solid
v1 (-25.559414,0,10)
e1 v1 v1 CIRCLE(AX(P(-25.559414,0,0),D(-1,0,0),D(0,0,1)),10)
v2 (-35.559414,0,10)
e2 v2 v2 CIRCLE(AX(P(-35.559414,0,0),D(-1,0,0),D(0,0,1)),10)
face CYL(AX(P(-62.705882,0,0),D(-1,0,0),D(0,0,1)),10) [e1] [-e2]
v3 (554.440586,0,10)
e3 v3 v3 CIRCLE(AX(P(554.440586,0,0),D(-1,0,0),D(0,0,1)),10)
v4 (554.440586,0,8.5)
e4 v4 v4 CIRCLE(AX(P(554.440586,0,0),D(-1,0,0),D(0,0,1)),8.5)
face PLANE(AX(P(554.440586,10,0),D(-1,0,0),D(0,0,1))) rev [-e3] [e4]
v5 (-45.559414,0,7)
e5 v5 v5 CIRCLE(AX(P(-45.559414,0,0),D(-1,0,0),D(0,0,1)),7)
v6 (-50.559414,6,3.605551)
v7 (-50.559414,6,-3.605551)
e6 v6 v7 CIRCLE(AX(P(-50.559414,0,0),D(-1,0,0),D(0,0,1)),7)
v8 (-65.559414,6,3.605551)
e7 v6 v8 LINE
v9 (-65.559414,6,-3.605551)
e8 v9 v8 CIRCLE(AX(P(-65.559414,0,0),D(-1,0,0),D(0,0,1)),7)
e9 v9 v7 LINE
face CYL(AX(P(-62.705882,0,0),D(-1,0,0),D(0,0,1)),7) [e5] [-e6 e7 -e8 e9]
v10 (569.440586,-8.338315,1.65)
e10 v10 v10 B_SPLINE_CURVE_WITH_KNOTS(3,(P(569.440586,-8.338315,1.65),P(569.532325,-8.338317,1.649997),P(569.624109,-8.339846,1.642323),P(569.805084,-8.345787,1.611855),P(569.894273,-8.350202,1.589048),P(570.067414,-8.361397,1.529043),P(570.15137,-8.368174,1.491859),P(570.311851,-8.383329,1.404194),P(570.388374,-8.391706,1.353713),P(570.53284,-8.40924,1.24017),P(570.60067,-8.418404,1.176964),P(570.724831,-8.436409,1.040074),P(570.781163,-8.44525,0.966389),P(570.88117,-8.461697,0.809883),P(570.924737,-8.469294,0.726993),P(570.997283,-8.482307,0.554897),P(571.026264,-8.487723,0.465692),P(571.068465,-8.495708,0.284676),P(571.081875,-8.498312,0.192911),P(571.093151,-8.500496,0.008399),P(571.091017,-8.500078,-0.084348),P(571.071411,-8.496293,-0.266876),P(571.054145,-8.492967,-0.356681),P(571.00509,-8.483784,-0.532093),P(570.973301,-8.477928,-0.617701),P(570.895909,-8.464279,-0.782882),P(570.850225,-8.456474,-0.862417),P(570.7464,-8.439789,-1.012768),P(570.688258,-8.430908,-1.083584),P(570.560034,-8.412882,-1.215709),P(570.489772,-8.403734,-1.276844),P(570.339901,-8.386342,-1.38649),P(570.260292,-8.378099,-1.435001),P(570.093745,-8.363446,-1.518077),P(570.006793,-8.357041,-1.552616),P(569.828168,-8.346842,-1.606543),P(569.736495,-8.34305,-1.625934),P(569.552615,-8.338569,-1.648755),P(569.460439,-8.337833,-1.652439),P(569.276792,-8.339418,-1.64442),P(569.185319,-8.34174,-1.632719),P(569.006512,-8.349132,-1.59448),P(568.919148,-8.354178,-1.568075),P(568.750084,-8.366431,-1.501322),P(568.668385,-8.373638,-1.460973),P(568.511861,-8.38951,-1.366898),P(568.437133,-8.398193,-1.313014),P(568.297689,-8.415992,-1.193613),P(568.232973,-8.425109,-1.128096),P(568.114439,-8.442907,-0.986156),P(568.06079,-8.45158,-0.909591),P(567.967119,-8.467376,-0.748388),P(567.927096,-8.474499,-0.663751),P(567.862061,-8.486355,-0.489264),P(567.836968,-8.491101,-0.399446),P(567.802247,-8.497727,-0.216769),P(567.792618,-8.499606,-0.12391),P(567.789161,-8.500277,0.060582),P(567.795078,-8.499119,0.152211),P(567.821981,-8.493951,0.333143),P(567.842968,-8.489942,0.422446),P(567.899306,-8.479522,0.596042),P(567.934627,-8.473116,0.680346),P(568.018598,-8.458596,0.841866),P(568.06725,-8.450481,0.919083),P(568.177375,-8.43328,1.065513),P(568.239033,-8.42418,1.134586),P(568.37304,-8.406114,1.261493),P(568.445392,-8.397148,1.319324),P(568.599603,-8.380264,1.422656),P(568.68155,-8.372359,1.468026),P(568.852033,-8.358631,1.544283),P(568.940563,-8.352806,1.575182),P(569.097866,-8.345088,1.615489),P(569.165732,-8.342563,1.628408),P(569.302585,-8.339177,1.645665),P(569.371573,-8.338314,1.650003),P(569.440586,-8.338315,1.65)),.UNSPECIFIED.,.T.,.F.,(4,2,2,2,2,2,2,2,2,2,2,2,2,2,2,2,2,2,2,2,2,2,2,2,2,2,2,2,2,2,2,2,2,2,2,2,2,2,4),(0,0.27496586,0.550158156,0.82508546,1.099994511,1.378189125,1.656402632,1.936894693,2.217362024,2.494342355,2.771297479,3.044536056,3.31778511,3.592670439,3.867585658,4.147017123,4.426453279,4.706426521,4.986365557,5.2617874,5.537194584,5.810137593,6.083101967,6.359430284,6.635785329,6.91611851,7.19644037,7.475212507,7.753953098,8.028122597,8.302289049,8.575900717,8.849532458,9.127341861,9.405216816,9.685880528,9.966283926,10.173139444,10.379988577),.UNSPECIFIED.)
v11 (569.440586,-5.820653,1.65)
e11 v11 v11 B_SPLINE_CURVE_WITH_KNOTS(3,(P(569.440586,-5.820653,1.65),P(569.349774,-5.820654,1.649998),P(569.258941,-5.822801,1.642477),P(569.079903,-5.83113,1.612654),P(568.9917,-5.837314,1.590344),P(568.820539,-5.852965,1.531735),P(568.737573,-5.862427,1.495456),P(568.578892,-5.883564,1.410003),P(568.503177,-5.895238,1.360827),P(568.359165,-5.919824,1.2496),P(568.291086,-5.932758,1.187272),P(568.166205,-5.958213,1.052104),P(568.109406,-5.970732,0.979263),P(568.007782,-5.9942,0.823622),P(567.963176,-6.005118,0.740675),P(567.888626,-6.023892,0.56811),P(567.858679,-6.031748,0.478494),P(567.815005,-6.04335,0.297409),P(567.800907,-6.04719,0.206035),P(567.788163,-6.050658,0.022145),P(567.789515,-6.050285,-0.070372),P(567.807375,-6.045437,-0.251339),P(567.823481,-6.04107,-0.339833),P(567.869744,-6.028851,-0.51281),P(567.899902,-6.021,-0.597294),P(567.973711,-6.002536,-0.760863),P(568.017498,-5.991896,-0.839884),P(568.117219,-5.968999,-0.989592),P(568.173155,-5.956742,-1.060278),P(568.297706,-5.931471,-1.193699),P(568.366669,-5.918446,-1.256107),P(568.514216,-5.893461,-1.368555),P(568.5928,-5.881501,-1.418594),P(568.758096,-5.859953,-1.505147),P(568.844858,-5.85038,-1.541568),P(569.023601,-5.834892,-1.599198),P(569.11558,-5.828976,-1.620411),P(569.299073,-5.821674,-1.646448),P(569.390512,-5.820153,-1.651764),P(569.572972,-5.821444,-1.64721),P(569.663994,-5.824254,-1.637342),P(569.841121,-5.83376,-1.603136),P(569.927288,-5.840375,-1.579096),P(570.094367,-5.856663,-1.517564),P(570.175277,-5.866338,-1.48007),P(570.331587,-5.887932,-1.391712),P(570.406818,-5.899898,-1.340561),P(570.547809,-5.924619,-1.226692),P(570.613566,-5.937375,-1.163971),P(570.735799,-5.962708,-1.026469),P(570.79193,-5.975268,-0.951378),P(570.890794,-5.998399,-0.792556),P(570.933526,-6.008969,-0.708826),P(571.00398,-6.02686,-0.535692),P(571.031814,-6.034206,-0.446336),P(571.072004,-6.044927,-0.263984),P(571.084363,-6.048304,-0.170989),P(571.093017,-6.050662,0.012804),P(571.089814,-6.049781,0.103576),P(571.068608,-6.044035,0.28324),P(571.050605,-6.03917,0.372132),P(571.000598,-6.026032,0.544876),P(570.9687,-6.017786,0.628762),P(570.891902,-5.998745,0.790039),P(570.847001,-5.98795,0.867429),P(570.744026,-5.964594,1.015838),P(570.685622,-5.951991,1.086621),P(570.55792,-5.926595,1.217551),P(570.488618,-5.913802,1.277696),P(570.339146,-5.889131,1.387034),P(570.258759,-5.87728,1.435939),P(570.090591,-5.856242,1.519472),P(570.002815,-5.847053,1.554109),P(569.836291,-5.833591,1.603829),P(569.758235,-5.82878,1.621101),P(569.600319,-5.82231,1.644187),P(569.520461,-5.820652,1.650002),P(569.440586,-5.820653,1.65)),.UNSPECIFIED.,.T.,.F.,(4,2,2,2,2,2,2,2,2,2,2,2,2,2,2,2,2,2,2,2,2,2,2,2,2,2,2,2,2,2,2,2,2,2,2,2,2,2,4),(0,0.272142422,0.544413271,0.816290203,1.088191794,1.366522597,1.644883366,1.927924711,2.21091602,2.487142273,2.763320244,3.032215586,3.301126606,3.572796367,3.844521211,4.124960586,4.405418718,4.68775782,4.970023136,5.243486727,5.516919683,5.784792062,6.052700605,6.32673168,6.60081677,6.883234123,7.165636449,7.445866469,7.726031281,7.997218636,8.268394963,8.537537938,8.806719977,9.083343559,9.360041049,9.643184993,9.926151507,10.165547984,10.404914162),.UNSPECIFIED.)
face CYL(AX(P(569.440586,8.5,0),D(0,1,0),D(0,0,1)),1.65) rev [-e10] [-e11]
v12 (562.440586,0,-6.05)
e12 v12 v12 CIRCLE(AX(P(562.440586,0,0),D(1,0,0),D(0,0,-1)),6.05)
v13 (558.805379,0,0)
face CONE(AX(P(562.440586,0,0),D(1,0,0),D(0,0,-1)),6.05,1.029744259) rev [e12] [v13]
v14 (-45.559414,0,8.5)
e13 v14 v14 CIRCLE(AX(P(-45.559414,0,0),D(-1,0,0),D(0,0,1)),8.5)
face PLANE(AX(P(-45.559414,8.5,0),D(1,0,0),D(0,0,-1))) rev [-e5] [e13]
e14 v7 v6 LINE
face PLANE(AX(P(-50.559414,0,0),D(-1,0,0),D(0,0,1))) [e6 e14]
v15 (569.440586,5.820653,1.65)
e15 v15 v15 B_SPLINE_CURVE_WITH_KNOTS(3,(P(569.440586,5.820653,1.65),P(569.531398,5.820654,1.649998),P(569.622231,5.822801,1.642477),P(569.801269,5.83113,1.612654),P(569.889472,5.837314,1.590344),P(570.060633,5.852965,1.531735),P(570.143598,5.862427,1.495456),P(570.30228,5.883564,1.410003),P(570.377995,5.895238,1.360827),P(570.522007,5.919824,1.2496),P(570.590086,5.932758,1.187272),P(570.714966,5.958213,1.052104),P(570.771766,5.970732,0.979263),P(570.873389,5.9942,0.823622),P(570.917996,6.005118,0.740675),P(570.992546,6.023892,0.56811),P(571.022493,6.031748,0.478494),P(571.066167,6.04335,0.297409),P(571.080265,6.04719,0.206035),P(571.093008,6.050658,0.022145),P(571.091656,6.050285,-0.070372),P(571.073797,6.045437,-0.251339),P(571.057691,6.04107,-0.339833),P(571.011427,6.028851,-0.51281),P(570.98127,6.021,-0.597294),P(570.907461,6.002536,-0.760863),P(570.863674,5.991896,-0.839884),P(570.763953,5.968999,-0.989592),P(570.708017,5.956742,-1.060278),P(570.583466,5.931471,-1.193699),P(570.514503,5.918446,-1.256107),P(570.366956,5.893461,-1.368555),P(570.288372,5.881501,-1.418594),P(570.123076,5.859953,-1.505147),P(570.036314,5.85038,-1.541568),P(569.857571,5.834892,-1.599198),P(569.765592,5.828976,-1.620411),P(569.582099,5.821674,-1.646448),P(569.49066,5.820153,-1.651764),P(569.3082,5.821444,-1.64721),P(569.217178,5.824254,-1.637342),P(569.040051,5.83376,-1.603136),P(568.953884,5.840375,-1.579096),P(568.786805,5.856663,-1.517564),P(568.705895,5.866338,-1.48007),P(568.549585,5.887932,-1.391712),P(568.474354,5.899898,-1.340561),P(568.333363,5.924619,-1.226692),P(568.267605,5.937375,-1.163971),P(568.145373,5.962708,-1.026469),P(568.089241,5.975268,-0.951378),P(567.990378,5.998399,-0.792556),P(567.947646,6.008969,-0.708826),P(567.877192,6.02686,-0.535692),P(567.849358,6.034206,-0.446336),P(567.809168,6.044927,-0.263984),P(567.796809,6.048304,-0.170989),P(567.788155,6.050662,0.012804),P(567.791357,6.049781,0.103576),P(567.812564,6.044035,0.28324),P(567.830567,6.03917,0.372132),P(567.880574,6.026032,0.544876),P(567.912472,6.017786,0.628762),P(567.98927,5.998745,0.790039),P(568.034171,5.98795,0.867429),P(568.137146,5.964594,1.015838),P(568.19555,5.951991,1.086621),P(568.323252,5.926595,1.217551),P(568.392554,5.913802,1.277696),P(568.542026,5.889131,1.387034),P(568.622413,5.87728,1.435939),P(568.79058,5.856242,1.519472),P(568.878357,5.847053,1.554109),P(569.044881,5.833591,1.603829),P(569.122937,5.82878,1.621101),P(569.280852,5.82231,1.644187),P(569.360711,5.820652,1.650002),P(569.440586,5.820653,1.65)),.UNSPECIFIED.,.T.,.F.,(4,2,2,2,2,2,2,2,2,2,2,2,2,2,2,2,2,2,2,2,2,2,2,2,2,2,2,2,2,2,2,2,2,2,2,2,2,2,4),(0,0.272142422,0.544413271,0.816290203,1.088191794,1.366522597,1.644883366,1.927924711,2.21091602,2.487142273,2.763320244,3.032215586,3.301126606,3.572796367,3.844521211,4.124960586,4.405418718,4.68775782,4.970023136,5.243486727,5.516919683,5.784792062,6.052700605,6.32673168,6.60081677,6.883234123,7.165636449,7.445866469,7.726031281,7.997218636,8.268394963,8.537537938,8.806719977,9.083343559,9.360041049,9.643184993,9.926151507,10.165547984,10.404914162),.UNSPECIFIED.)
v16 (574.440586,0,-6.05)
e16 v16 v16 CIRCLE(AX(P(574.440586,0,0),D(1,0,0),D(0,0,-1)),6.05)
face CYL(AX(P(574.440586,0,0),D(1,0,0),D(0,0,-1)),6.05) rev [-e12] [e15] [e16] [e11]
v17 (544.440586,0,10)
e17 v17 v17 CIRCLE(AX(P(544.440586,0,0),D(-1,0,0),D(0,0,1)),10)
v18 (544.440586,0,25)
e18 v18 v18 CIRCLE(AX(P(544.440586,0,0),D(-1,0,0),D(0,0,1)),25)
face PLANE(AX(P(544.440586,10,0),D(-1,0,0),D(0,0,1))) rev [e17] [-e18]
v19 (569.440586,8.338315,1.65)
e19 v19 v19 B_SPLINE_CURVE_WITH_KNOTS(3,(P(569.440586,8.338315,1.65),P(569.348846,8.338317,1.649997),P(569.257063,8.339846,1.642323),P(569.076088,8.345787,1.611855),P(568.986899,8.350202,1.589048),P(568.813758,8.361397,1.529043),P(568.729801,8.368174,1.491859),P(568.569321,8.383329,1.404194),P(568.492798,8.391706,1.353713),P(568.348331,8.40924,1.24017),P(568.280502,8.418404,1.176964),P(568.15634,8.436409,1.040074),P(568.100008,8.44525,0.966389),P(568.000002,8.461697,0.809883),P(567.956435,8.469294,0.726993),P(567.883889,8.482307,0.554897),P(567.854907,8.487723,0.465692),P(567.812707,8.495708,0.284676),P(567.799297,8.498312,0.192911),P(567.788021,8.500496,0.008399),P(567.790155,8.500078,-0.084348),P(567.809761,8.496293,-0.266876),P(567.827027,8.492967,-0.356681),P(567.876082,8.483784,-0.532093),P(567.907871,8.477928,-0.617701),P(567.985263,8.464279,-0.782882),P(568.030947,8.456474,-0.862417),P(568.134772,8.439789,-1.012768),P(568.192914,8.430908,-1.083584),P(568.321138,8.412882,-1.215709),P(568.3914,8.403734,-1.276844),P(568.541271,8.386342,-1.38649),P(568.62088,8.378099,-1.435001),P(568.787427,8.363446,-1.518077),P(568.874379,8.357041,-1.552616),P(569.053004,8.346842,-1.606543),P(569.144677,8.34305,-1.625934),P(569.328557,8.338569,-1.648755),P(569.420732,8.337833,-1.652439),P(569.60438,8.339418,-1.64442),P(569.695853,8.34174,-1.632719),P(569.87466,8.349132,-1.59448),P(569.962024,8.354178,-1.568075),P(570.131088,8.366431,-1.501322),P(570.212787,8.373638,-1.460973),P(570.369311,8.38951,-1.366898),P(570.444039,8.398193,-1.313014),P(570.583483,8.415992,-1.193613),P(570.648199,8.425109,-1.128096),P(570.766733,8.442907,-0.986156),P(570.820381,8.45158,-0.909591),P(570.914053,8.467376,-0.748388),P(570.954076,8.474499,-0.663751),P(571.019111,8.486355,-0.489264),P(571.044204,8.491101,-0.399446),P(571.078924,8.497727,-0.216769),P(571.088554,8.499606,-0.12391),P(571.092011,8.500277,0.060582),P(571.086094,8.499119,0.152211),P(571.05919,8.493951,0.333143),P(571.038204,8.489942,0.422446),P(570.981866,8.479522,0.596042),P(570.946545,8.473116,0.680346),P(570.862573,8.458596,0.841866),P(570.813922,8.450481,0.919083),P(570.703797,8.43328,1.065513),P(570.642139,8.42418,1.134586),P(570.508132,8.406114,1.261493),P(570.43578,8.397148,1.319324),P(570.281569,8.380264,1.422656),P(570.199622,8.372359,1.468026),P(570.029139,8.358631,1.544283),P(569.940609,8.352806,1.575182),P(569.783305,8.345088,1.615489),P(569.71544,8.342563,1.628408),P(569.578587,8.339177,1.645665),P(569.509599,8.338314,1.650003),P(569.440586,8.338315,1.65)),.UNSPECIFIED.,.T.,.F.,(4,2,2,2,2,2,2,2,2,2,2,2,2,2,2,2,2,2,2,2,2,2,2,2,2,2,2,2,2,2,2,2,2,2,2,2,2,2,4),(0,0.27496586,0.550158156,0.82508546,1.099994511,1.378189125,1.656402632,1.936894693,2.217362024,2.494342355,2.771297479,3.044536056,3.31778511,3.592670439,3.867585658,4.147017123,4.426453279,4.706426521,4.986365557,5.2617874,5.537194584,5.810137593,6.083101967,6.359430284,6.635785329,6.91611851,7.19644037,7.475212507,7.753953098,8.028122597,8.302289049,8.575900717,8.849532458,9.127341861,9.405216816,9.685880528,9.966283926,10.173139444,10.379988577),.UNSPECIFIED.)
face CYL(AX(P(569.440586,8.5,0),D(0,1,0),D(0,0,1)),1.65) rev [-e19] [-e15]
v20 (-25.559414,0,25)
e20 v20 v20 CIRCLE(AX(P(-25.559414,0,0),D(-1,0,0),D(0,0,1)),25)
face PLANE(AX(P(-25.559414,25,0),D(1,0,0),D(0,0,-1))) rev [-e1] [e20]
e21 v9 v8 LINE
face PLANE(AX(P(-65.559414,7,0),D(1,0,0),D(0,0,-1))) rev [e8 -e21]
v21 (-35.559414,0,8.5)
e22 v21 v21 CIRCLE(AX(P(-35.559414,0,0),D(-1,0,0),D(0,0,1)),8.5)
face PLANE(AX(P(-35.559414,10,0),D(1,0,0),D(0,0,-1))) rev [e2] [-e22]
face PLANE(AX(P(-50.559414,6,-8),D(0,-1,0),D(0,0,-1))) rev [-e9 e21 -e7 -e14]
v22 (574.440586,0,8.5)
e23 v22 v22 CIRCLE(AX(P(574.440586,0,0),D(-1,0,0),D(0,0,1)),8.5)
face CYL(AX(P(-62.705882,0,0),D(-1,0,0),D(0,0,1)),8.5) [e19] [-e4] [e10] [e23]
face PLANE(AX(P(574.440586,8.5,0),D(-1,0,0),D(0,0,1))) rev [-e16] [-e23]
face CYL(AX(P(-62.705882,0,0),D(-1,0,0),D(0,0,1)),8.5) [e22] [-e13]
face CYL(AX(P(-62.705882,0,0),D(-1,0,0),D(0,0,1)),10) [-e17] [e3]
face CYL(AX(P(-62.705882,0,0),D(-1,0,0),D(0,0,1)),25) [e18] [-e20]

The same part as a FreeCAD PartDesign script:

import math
import FreeCAD as App
import Part
import Sketcher
Q = App.Units.Quantity


def add_polygon(sketch, points):
    """Adds a closed chain of lines whose ends are joined by coincident constraints."""
    first, n = sketch.GeometryCount, len(points)
    for a, b in zip(points, points[1:] + points[:1]):
        sketch.addGeometry(Part.LineSegment(App.Vector(*a, 0), App.Vector(*b, 0)), False)
    for i in range(n):
        sketch.addConstraint(Sketcher.Constraint("Coincident", first + i, 2, first + (i + 1) % n, 1))

doc = App.newDocument("Part")
body = doc.addObject("PartDesign::Body", "Body")

# Sketch on XY plane
sketch1 = body.newObject("Sketcher::SketchObject", "Sketch")
sketch1.AttachmentSupport = (doc.getObject("XY_Plane"), [""])
sketch1.MapMode = "FlatFace"
add_polygon(sketch1, [(554.440586, 10), (544.440586, 10), (544.440586, 25), (-25.559414, 25), (-25.559414, 10), (-35.559414, 10), (-35.559414, 8.5), (-45.559414, 8.5), (-45.559414, 7), (-65.559414, 7), (-65.559414, 0), (574.440586, 0), (574.440586, 8.5), (554.440586, 8.5)])  # lines 0-13
sketch1.addConstraint([
    Sketcher.Constraint("Horizontal", 0),
    Sketcher.Constraint("Vertical", 1),
    Sketcher.Constraint("Horizontal", 2),
    Sketcher.Constraint("Vertical", 3),
    Sketcher.Constraint("Horizontal", 4),
    Sketcher.Constraint("Vertical", 5),
    Sketcher.Constraint("Horizontal", 6),
    Sketcher.Constraint("Vertical", 7),
    Sketcher.Constraint("Horizontal", 8),
    Sketcher.Constraint("Vertical", 9),
    Sketcher.Constraint("Horizontal", 10),
    Sketcher.Constraint("Vertical", 11),
    Sketcher.Constraint("Horizontal", 12),
    Sketcher.Constraint("Vertical", 13),
    Sketcher.Constraint("PointOnObject", 9, 2, -1),
    Sketcher.Constraint("Horizontal", 0, 2, 3, 2),
    Sketcher.Constraint("Horizontal", 6, 2, 11, 2),
    Sketcher.Constraint("Equal", 0, 4),
    Sketcher.Constraint("Equal", 4, 6),
    Sketcher.Constraint("Equal", 8, 12),
    Sketcher.Constraint("Equal", 5, 7),
    Sketcher.Constraint("DistanceX", 0, 2, 0, 1, Q("10 mm")),
    Sketcher.Constraint("DistanceX", 2, 2, 2, 1, Q("570 mm")),
    Sketcher.Constraint("DistanceX", 8, 2, 8, 1, Q("20 mm")),
    Sketcher.Constraint("DistanceY", 1, 1, 1, 2, Q("15 mm")),
    Sketcher.Constraint("DistanceY", 9, 2, 9, 1, Q("7 mm")),
    Sketcher.Constraint("DistanceY", 5, 2, 5, 1, Q("1.5 mm")),
    Sketcher.Constraint("DistanceX", -1, 1, 0, 2, Q("544.440586 mm")),
])
revolution = body.newObject("PartDesign::Revolution", "Revolution")
revolution.Profile = sketch1
revolution.ReferenceAxis = (sketch1, ["H_Axis"])
revolution.Angle = 360

# Sketch on YZ plane
sketch2 = body.newObject("Sketcher::SketchObject", "Sketch001")
sketch2.AttachmentSupport = (doc.getObject("YZ_Plane"), [""])
sketch2.MapMode = "FlatFace"
sketch2.AttachmentOffset = App.Placement(App.Vector(0, 0, -65.559414), App.Rotation())
sketch2.addGeometry([
    Part.LineSegment(App.Vector(6, -8, 0), App.Vector(6, 8, 0)),
    Part.ArcOfCircle(Part.Circle(App.Vector(0, 0, 0), App.Vector(0, 0, 1), 10), math.radians(-53.130102), math.radians(53.130102)),
], False)
sketch2.addConstraint([
    Sketcher.Constraint("Coincident", 0, 1, 1, 1),
    Sketcher.Constraint("Coincident", 1, 2, 0, 2),
    Sketcher.Constraint("Vertical", 0),
    Sketcher.Constraint("Coincident", 1, 3, -1, 1),
    Sketcher.Constraint("Radius", 1, Q("10 mm")),
    Sketcher.Constraint("DistanceY", 0, 1, 0, 2, Q("16 mm")),
])
pocket1 = body.newObject("PartDesign::Pocket", "Pocket")
pocket1.Profile = sketch2
pocket1.Length = 15
pocket1.Reversed = True

# Sketch on YZ plane
sketch3 = body.newObject("Sketcher::SketchObject", "Sketch002")
sketch3.AttachmentSupport = (doc.getObject("YZ_Plane"), [""])
sketch3.MapMode = "FlatFace"
sketch3.AttachmentOffset = App.Placement(App.Vector(0, 0, 574.440586), App.Rotation())
sketch3.addGeometry(Part.Circle(App.Vector(0, 0, 0), App.Vector(0, 0, 1), 6.05), False)
sketch3.addConstraint([
    Sketcher.Constraint("Coincident", 0, 3, -1, 1),
    Sketcher.Constraint("Diameter", 0, Q("12.1 mm")),
])
doc.recompute()
hole = body.newObject("PartDesign::Hole", "Hole")
hole.Profile = sketch3
hole.ThreadType = "None"
hole.Diameter = 12.1
hole.DepthType = "Dimension"
hole.Depth = 12
hole.DrillPoint = "Angled"
hole.DrillPointAngle = 118

# Sketch on XZ plane
sketch4 = body.newObject("Sketcher::SketchObject", "Sketch003")
sketch4.AttachmentSupport = (doc.getObject("XZ_Plane"), [""])
sketch4.MapMode = "FlatFace"
sketch4.AttachmentOffset = App.Placement(App.Vector(0, 0, -8.5), App.Rotation())
sketch4.addGeometry(Part.Circle(App.Vector(569.440586, 0, 0), App.Vector(0, 0, 1), 1.65), False)
sketch4.addConstraint([
    Sketcher.Constraint("PointOnObject", 0, 3, -1),
    Sketcher.Constraint("Diameter", 0, Q("3.3 mm")),
    Sketcher.Constraint("DistanceX", -1, 1, 0, 3, Q("569.440586 mm")),
])
doc.recompute()
hole2 = body.newObject("PartDesign::Hole", "Hole001")
hole2.Profile = sketch4
hole2.ThreadType = "None"
hole2.Diameter = 3.3
hole2.DepthType = "Dimension"
hole2.Depth = 25
hole2.DrillPoint = "Angled"
hole2.DrillPointAngle = 118
hole2.Reversed = True

doc.recompute()
